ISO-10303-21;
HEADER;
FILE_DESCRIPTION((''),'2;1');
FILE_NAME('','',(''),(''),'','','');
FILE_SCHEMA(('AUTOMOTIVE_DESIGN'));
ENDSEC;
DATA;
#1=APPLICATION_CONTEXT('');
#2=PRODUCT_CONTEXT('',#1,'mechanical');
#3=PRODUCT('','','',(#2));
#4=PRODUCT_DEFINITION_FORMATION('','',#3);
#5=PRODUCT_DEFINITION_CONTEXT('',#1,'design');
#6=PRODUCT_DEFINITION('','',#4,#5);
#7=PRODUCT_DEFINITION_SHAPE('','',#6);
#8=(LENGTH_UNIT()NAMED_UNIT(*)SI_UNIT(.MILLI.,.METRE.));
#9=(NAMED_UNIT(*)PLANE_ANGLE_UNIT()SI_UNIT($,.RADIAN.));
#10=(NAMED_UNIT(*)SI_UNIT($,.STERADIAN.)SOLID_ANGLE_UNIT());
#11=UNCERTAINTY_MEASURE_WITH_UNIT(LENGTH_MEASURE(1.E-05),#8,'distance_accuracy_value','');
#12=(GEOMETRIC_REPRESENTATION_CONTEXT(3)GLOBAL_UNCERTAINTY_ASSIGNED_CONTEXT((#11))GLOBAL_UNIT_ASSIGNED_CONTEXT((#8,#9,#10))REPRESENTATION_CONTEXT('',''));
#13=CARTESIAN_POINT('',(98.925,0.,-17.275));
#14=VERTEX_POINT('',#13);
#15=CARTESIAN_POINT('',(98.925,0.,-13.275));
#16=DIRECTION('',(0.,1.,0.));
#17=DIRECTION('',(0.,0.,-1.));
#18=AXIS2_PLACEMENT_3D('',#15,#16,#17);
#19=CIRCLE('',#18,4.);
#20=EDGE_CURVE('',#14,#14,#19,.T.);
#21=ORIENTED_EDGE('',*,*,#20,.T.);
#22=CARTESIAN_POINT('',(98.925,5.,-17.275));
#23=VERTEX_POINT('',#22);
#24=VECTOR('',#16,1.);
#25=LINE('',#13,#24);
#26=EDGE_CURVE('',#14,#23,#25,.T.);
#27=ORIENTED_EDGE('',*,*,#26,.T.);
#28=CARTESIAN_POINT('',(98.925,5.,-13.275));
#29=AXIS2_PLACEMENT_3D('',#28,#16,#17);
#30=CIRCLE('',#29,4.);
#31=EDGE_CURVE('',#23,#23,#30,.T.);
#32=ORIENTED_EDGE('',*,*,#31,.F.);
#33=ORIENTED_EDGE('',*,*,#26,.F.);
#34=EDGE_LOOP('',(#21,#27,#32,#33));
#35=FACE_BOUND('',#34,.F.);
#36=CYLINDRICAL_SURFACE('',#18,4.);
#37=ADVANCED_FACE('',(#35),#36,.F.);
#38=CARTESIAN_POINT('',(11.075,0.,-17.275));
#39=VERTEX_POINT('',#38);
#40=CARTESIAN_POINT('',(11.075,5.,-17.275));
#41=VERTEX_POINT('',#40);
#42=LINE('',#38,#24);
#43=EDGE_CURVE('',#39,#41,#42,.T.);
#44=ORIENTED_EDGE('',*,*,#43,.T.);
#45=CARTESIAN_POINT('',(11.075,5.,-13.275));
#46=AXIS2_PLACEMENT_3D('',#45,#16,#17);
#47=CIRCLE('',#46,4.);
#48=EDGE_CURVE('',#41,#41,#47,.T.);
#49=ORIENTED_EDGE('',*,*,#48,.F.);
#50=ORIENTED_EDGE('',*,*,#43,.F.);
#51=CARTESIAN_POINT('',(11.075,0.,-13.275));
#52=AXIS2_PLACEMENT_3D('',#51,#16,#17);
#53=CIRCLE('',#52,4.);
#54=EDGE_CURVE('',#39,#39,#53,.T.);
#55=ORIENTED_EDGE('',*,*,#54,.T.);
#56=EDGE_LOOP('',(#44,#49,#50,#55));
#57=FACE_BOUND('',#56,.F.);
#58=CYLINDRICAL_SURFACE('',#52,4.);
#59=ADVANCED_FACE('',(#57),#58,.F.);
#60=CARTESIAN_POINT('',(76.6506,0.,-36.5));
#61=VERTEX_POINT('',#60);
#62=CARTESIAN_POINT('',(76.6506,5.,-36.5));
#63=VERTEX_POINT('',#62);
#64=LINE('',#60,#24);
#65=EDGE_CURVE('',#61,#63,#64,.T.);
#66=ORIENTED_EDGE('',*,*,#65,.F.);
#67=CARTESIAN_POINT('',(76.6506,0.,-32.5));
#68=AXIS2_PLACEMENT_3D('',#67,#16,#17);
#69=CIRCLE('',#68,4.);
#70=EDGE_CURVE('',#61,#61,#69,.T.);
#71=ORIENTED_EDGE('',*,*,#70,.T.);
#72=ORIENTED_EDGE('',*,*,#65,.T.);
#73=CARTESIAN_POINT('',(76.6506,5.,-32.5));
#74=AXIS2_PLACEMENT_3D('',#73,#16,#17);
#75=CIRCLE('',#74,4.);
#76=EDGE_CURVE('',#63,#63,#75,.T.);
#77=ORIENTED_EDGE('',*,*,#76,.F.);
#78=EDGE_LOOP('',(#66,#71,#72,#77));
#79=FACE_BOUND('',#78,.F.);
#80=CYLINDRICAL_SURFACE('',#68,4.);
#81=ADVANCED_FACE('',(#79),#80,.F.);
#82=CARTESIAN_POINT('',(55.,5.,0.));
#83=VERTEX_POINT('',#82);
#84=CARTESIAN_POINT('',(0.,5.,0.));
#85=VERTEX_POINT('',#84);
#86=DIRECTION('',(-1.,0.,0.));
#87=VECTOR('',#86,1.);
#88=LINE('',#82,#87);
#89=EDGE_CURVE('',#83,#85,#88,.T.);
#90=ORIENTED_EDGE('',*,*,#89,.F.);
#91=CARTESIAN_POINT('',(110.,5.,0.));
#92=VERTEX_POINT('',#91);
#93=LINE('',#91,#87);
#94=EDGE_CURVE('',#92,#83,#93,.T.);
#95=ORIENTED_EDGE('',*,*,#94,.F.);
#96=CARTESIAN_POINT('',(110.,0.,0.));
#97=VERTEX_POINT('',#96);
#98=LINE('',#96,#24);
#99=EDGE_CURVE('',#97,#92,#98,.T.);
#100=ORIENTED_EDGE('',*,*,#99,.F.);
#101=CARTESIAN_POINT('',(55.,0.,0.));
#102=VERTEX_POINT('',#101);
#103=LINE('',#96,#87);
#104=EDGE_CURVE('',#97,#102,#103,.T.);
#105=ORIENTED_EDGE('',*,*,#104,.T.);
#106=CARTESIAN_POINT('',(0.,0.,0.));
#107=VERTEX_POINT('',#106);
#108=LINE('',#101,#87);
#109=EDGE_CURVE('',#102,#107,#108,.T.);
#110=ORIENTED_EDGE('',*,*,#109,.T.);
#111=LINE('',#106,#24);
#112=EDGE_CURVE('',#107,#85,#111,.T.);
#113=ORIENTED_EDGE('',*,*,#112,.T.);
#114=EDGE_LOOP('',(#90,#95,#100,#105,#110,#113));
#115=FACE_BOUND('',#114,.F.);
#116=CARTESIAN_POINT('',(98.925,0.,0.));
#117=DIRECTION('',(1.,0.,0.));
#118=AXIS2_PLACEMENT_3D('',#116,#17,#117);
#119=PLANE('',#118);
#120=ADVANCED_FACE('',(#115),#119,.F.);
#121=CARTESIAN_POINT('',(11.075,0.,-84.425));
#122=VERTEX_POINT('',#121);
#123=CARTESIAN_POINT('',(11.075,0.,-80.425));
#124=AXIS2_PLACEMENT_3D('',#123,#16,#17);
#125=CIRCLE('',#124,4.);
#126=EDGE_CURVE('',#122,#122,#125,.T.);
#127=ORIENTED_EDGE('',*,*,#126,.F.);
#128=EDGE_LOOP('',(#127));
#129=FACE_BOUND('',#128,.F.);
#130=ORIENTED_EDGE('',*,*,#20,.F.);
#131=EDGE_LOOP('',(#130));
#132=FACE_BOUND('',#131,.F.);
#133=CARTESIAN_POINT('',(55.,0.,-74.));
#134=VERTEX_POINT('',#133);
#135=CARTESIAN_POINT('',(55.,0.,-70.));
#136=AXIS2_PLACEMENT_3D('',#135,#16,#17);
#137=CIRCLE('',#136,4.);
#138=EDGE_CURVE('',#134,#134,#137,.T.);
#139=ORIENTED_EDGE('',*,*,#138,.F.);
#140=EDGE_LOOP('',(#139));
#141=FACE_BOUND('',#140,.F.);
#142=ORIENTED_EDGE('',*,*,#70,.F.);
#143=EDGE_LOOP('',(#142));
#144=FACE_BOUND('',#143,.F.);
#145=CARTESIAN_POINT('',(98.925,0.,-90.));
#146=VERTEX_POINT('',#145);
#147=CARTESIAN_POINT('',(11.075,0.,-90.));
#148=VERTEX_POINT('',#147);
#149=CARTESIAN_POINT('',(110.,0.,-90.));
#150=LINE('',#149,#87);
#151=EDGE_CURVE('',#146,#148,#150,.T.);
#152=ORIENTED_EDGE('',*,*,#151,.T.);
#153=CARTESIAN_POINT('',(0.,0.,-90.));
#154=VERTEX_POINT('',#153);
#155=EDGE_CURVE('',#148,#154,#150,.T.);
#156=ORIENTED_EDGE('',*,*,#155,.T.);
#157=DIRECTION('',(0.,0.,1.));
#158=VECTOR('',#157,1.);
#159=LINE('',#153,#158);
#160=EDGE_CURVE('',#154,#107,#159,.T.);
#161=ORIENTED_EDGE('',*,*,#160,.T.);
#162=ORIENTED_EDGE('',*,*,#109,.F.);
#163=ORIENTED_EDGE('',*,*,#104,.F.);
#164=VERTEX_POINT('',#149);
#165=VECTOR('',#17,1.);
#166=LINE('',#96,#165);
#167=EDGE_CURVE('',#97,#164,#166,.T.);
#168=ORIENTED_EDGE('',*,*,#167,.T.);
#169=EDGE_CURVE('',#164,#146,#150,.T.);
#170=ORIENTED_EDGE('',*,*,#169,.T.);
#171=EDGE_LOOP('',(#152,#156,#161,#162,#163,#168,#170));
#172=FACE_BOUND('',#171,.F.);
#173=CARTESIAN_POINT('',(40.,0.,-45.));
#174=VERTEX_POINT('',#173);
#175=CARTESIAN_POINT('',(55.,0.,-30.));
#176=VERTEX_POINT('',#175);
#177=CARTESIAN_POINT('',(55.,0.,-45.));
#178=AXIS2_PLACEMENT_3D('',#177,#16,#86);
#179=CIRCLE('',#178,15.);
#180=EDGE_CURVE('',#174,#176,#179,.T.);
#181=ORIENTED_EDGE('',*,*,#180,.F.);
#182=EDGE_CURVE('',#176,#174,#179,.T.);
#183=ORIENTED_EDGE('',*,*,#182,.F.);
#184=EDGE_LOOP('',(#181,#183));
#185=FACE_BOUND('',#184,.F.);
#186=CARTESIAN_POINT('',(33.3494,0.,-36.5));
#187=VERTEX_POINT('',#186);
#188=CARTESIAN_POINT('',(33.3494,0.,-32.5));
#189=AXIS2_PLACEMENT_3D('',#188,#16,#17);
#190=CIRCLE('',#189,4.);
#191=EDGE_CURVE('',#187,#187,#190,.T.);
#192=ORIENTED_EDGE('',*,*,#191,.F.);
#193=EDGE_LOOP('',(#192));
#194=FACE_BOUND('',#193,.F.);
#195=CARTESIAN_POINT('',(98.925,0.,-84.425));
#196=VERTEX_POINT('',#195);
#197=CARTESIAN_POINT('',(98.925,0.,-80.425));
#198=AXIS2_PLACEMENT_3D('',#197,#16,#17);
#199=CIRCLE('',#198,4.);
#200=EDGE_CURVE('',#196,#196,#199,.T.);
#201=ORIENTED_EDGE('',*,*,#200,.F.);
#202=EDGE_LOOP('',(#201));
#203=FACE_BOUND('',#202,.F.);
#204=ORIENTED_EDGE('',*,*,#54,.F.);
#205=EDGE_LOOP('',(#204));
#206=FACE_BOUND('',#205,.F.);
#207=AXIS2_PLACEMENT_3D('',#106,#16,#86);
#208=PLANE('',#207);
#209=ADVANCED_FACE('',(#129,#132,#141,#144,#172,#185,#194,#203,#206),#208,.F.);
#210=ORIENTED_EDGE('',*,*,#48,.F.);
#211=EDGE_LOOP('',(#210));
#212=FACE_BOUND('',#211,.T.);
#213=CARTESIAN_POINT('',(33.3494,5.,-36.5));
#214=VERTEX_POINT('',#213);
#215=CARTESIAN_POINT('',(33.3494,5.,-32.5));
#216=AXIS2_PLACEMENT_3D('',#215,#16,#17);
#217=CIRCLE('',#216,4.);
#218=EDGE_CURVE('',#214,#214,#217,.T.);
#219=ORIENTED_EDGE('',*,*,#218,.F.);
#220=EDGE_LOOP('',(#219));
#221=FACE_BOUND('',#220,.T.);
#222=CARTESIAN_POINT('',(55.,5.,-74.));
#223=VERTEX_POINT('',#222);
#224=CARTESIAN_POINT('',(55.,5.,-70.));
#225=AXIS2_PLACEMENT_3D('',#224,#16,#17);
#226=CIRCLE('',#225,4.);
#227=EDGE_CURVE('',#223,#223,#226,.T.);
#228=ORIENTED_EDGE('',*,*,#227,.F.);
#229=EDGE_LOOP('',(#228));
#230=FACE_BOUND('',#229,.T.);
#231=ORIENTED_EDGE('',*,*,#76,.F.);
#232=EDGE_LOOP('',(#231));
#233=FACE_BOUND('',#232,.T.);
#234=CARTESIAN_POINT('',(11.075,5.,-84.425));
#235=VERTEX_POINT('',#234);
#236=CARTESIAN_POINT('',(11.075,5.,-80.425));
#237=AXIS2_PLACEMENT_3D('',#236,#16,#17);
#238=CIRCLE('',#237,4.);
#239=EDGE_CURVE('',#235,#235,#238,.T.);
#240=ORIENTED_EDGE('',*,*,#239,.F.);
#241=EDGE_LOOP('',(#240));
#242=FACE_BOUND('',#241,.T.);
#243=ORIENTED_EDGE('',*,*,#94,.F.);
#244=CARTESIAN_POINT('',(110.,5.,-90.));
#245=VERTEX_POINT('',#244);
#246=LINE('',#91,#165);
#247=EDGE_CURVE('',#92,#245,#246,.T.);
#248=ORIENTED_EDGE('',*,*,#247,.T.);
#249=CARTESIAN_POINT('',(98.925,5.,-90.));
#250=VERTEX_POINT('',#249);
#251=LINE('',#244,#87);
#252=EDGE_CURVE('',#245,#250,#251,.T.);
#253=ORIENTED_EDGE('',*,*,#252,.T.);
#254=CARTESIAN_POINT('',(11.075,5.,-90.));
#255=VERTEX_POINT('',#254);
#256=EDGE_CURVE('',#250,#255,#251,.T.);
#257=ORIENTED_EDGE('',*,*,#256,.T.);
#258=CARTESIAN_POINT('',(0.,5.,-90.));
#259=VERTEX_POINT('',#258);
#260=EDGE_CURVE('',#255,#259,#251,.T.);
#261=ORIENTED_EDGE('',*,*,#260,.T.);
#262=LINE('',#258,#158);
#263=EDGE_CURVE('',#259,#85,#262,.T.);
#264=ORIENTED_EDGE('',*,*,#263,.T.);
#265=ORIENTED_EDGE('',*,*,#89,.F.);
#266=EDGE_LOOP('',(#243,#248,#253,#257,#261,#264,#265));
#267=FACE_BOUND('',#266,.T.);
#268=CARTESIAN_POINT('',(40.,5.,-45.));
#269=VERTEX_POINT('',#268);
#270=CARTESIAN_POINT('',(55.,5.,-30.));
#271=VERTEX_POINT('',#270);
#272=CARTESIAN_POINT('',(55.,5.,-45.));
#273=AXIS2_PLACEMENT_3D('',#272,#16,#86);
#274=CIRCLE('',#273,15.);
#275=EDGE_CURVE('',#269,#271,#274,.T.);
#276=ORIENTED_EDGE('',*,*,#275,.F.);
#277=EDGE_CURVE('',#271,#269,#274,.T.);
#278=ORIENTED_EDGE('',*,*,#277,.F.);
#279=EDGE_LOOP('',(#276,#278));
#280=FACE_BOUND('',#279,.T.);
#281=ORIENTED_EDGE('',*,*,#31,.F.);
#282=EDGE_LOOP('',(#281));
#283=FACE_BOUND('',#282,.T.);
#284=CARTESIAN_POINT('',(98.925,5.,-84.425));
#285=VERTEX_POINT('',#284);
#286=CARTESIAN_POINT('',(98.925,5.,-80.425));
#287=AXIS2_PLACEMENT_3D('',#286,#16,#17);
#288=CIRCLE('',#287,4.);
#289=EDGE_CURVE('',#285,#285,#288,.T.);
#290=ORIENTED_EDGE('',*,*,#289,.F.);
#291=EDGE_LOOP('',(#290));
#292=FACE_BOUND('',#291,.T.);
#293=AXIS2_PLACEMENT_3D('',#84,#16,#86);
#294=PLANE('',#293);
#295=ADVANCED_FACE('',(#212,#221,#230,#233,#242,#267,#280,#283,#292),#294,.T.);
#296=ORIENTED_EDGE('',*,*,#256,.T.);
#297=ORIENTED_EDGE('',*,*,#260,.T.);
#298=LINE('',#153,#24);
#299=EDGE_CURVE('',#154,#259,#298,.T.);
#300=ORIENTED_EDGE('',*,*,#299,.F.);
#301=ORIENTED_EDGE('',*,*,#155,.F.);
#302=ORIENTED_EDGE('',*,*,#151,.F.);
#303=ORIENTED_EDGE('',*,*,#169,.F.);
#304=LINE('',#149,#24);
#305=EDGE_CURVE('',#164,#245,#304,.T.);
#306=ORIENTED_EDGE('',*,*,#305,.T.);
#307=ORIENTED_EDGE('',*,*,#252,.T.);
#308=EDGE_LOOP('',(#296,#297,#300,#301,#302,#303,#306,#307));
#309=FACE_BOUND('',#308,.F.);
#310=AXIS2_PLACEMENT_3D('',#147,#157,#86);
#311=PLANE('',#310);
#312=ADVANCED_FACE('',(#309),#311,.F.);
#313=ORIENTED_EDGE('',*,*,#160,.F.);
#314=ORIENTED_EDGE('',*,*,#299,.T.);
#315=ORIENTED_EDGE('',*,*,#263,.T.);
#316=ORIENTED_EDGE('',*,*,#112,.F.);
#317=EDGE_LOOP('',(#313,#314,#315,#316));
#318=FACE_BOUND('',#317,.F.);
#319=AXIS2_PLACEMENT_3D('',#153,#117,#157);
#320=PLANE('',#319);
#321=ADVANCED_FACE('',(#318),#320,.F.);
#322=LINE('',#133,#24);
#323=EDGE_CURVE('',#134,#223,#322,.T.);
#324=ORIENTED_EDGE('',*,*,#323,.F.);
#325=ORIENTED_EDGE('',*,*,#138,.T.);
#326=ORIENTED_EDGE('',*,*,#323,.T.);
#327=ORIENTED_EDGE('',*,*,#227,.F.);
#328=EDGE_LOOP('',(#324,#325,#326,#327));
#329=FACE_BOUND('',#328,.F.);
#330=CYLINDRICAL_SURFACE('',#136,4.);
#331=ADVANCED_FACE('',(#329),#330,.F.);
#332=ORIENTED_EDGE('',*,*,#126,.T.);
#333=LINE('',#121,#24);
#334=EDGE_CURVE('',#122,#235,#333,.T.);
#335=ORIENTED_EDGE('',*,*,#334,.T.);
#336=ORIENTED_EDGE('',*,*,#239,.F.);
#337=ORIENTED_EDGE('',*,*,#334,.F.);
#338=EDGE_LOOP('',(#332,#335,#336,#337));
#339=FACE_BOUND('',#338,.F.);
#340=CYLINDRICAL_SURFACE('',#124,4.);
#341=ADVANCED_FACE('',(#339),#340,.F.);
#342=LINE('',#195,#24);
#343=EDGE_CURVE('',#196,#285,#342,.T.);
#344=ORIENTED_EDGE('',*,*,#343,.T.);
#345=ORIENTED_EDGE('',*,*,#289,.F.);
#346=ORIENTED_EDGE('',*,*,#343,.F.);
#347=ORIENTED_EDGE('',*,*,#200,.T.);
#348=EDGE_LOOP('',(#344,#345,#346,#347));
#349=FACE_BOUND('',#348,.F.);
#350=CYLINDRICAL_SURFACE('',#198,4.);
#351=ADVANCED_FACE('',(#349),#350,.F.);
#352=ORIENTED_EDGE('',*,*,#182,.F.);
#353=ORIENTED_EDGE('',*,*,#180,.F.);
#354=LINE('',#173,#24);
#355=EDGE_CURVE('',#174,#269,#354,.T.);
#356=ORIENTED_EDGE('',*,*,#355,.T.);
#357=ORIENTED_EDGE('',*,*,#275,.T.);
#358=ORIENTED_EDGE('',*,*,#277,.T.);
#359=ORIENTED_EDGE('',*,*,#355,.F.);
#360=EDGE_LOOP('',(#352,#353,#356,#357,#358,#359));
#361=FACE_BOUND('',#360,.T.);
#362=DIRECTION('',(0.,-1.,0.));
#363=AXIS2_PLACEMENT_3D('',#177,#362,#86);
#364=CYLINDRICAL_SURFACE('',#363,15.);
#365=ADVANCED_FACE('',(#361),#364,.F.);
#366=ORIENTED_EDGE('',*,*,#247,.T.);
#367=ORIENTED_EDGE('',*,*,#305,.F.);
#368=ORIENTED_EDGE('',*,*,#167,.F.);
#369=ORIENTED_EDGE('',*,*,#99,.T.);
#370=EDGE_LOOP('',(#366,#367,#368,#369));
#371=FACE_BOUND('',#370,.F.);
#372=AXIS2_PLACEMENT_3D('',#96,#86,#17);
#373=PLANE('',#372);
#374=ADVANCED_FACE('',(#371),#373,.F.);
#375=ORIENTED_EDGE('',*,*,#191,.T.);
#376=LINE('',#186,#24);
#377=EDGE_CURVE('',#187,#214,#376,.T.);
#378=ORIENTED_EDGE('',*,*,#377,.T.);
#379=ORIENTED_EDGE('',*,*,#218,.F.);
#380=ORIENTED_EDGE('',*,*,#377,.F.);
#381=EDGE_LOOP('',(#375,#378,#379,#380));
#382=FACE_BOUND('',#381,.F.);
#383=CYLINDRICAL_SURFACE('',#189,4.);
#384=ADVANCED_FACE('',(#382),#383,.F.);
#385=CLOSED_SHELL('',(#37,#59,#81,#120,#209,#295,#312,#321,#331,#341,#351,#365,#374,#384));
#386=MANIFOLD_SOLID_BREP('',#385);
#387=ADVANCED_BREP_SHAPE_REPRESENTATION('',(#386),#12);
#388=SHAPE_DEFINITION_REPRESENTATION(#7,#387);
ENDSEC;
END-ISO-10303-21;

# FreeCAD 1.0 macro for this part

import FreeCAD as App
import Part
import Sketcher
Q = App.Units.Quantity


def add_polygon(sketch, points):
    """Adds a closed chain of lines whose ends are joined by coincident constraints."""
    first, n = sketch.GeometryCount, len(points)
    for a, b in zip(points, points[1:] + points[:1]):
        sketch.addGeometry(Part.LineSegment(App.Vector(*a, 0), App.Vector(*b, 0)), False)
    for i in range(n):
        sketch.addConstraint(Sketcher.Constraint("Coincident", first + i, 2, first + (i + 1) % n, 1))

doc = App.newDocument("Part")
body = doc.addObject("PartDesign::Body", "Body")

# Sketch on XZ plane
sketch1 = doc.addObject("Sketcher::SketchObject", "Sketch")
body.addObject(sketch1)
sketch1.AttachmentSupport = (doc.XZ_Plane, [""])
sketch1.MapMode = "FlatFace"
add_polygon(sketch1, [(0, -90), (0, 0), (55, 0), (110, 0), (110, -90), (99, -90), (11, -90)])  # lines 0-6
sketch1.addGeometry(Part.Circle(App.Vector(55, -45, 0), App.Vector(0, 0, 1), 15), False)  # 7
sketch1.addConstraint(Sketcher.Constraint("Vertical", 0))
sketch1.addConstraint(Sketcher.Constraint("Horizontal", 1))
sketch1.addConstraint(Sketcher.Constraint("Horizontal", 2))
sketch1.addConstraint(Sketcher.Constraint("Vertical", 3))
sketch1.addConstraint(Sketcher.Constraint("Horizontal", 4))
sketch1.addConstraint(Sketcher.Constraint("Horizontal", 5))
sketch1.addConstraint(Sketcher.Constraint("Horizontal", 6))
sketch1.addConstraint(Sketcher.Constraint("Coincident", 0, 2, -1, 1))
sketch1.addConstraint(Sketcher.Constraint("Vertical", 7, 3, 1, 2))
sketch1.addConstraint(Sketcher.Constraint("Equal", 1, 2))
sketch1.addConstraint(Sketcher.Constraint("Equal", 4, 6))
sketch1.addConstraint(Sketcher.Constraint("Diameter", 7, Q("30 mm")))
sketch1.addConstraint(Sketcher.Constraint("DistanceX", 1, 1, 1, 2, Q("55 mm")))
sketch1.addConstraint(Sketcher.Constraint("DistanceY", 0, 1, 0, 2, Q("90 mm")))
sketch1.addConstraint(Sketcher.Constraint("DistanceY", 7, 3, -1, 1, Q("45 mm")))
sketch1.addConstraint(Sketcher.Constraint("DistanceX", 5, 2, 5, 1, Q("87.85 mm")))
pad1 = doc.addObject("PartDesign::Pad", "Pad")
body.addObject(pad1)
pad1.Profile = sketch1
pad1.Length = 5
pad1.Reversed = True

# Sketch on XZ plane
sketch2 = doc.addObject("Sketcher::SketchObject", "Sketch001")
body.addObject(sketch2)
sketch2.AttachmentSupport = (doc.XZ_Plane, [""])
sketch2.MapMode = "FlatFace"
sketch2.addGeometry(Part.Circle(App.Vector(98.9, -80.4, 0), App.Vector(0, 0, 1), 4), False)
sketch2.addGeometry(Part.Circle(App.Vector(11.1, -80.4, 0), App.Vector(0, 0, 1), 4), False)
sketch2.addGeometry(Part.Circle(App.Vector(11.1, -13.3, 0), App.Vector(0, 0, 1), 4), False)
sketch2.addGeometry(Part.Circle(App.Vector(98.9, -13.3, 0), App.Vector(0, 0, 1), 4), False)
sketch2.addConstraint(Sketcher.Constraint("Equal", 0, 1))
sketch2.addConstraint(Sketcher.Constraint("Equal", 1, 2))
sketch2.addConstraint(Sketcher.Constraint("Equal", 2, 3))
sketch2.addConstraint(Sketcher.Constraint("Horizontal", 0, 3, 1, 3))
sketch2.addConstraint(Sketcher.Constraint("Horizontal", 2, 3, 3, 3))
sketch2.addConstraint(Sketcher.Constraint("Vertical", 1, 3, 2, 3))
sketch2.addConstraint(Sketcher.Constraint("Vertical", 0, 3, 3, 3))
sketch2.addConstraint(Sketcher.Constraint("Diameter", 0, Q("8 mm")))
sketch2.addConstraint(Sketcher.Constraint("DistanceX", 1, 3, 0, 3, Q("87.85 mm")))
sketch2.addConstraint(Sketcher.Constraint("DistanceY", 1, 3, 2, 3, Q("67.15 mm")))
sketch2.addConstraint(Sketcher.Constraint("DistanceX", -1, 1, 0, 3, Q("98.925 mm")))
sketch2.addConstraint(Sketcher.Constraint("DistanceY", 0, 3, -1, 1, Q("80.425 mm")))
doc.recompute()
hole = doc.addObject("PartDesign::Hole", "Hole")
body.addObject(hole)
hole.Profile = sketch2
hole.ThreadType = "None"
hole.Diameter = 8
hole.DepthType = "Dimension"
hole.Depth = 10
hole.DrillPoint = "Flat"

# Sketch on XZ plane
sketch3 = doc.addObject("Sketcher::SketchObject", "Sketch002")
body.addObject(sketch3)
sketch3.AttachmentSupport = (doc.XZ_Plane, [""])
sketch3.MapMode = "FlatFace"
sketch3.addGeometry(Part.Circle(App.Vector(55, -70, 0), App.Vector(0, 0, 1), 4), False)
sketch3.addGeometry(Part.Circle(App.Vector(76.7, -32.5, 0), App.Vector(0, 0, 1), 4), False)
sketch3.addGeometry(Part.Circle(App.Vector(33.3, -32.5, 0), App.Vector(0, 0, 1), 4), False)
sketch3.addConstraint(Sketcher.Constraint("Equal", 0, 1))
sketch3.addConstraint(Sketcher.Constraint("Equal", 1, 2))
sketch3.addConstraint(Sketcher.Constraint("Horizontal", 1, 3, 2, 3))
sketch3.addConstraint(Sketcher.Constraint("Diameter", 0, Q("8 mm")))
sketch3.addConstraint(Sketcher.Constraint("DistanceX", -1, 1, 0, 3, Q("55 mm")))
sketch3.addConstraint(Sketcher.Constraint("DistanceY", 0, 3, -1, 1, Q("70 mm")))
sketch3.addConstraint(Sketcher.Constraint("DistanceY", 1, 3, -1, 1, Q("32.5 mm")))
sketch3.addConstraint(Sketcher.Constraint("DistanceX", -1, 1, 1, 3, Q("76.6506 mm")))
sketch3.addConstraint(Sketcher.Constraint("DistanceX", -1, 1, 2, 3, Q("33.3494 mm")))
doc.recompute()
hole2 = doc.addObject("PartDesign::Hole", "Hole001")
body.addObject(hole2)
hole2.Profile = sketch3
hole2.ThreadType = "None"
hole2.Diameter = 8
hole2.DepthType = "Dimension"
hole2.Depth = 10
hole2.DrillPoint = "Flat"

doc.recompute()
